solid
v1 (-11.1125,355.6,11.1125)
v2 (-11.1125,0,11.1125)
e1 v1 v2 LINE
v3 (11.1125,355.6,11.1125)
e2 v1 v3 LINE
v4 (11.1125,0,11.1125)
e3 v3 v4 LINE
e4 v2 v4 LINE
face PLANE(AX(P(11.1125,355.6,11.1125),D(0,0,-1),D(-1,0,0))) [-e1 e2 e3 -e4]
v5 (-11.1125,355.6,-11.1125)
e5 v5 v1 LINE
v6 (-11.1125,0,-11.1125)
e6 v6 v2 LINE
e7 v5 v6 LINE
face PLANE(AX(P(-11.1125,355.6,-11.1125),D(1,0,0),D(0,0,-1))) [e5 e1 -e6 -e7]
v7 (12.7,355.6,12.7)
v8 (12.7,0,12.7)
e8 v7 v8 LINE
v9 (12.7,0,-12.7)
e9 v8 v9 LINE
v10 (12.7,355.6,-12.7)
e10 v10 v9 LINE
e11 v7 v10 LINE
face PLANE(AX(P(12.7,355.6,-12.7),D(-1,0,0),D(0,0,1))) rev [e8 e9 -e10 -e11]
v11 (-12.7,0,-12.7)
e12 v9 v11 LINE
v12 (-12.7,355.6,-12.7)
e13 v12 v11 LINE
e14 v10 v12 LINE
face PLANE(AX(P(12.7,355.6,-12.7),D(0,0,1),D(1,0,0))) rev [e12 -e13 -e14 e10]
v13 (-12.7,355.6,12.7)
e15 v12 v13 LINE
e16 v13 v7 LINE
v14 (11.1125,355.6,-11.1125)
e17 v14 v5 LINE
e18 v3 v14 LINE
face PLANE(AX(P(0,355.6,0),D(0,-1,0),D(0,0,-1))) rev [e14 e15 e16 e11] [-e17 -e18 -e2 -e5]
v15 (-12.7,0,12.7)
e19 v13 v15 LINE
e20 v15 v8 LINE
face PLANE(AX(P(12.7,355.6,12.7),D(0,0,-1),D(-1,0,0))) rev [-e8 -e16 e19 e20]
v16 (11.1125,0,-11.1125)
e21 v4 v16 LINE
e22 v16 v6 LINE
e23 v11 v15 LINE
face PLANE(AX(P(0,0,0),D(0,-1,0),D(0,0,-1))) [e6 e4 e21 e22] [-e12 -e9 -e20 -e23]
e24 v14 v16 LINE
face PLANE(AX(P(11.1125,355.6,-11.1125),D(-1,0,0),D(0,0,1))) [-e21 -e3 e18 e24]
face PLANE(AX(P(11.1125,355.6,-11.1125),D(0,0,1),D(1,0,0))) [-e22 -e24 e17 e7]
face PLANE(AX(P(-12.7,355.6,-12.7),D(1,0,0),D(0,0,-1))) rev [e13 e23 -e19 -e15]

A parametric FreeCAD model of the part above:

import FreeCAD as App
import Part
import Sketcher
Q = App.Units.Quantity

doc = App.newDocument("Part")
params = doc.addObject("Spreadsheet::Sheet", "Params")
for row, (alias, value) in enumerate([
    ("sketch1_width", "1 in"),
    ("sketch1_width2", "0.875 in"),
    ("pad1_length", "14 in"),
], start=1):
    params.set(f"A{row}", alias)
    params.set(f"B{row}", "=" + value)
    params.setAlias(f"B{row}", alias)

body = doc.addObject("PartDesign::Body", "Body")

# Sketch on XZ plane
sketch1 = doc.addObject("Sketcher::SketchObject", "Sketch")
body.addObject(sketch1)
sketch1.AttachmentSupport = (doc.XZ_Plane, [""])
sketch1.MapMode = "FlatFace"
sketch1.addGeometry(Part.LineSegment(App.Vector(-12.7, -12.7, 0), App.Vector(-12.7, 12.7, 0)), False)
sketch1.addGeometry(Part.LineSegment(App.Vector(-12.7, 12.7, 0), App.Vector(12.7, 12.7, 0)), False)
sketch1.addGeometry(Part.LineSegment(App.Vector(12.7, 12.7, 0), App.Vector(12.7, -12.7, 0)), False)
sketch1.addGeometry(Part.LineSegment(App.Vector(12.7, -12.7, 0), App.Vector(-12.7, -12.7, 0)), False)
sketch1.addGeometry(Part.LineSegment(App.Vector(11.1125, 11.1125, 0), App.Vector(-11.1125, 11.1125, 0)), False)
sketch1.addGeometry(Part.LineSegment(App.Vector(-11.1125, 11.1125, 0), App.Vector(-11.1125, -11.1125, 0)), False)
sketch1.addGeometry(Part.LineSegment(App.Vector(-11.1125, -11.1125, 0), App.Vector(11.1125, -11.1125, 0)), False)
sketch1.addGeometry(Part.LineSegment(App.Vector(11.1125, -11.1125, 0), App.Vector(11.1125, 11.1125, 0)), False)
sketch1.addConstraint(Sketcher.Constraint("Coincident", 0, 2, 1, 1))
sketch1.addConstraint(Sketcher.Constraint("Coincident", 1, 2, 2, 1))
sketch1.addConstraint(Sketcher.Constraint("Coincident", 2, 2, 3, 1))
sketch1.addConstraint(Sketcher.Constraint("Coincident", 3, 2, 0, 1))
sketch1.addConstraint(Sketcher.Constraint("Coincident", 4, 2, 5, 1))
sketch1.addConstraint(Sketcher.Constraint("Coincident", 5, 2, 6, 1))
sketch1.addConstraint(Sketcher.Constraint("Coincident", 6, 2, 7, 1))
sketch1.addConstraint(Sketcher.Constraint("Coincident", 7, 2, 4, 1))
sketch1.addConstraint(Sketcher.Constraint("Vertical", 0))
sketch1.addConstraint(Sketcher.Constraint("Horizontal", 1))
sketch1.addConstraint(Sketcher.Constraint("Vertical", 2))
sketch1.addConstraint(Sketcher.Constraint("Horizontal", 3))
sketch1.addConstraint(Sketcher.Constraint("Horizontal", 4))
sketch1.addConstraint(Sketcher.Constraint("Vertical", 5))
sketch1.addConstraint(Sketcher.Constraint("Horizontal", 6))
sketch1.addConstraint(Sketcher.Constraint("Vertical", 7))
sketch1.addConstraint(Sketcher.Constraint("Symmetric", 0, 2, 2, 2, -1, 1))
sketch1.addConstraint(Sketcher.Constraint("Symmetric", 4, 2, 6, 2, -1, 1))
sketch1.addConstraint(Sketcher.Constraint("Equal", 3, 0))
sketch1.addConstraint(Sketcher.Constraint("Equal", 6, 5))
sketch1.addConstraint(Sketcher.Constraint("DistanceX", 1, 1, 1, 2, Q("1 in")))
sketch1.addConstraint(Sketcher.Constraint("DistanceX", 4, 2, 4, 1, Q("0.875 in")))
sketch1.setExpression("Constraints[20]", "Params.sketch1_width")
sketch1.setExpression("Constraints[21]", "Params.sketch1_width2")
pad1 = doc.addObject("PartDesign::Pad", "Pad")
body.addObject(pad1)
pad1.Profile = sketch1
pad1.setExpression("Length", "Params.pad1_length")
pad1.Reversed = True

doc.recompute()
